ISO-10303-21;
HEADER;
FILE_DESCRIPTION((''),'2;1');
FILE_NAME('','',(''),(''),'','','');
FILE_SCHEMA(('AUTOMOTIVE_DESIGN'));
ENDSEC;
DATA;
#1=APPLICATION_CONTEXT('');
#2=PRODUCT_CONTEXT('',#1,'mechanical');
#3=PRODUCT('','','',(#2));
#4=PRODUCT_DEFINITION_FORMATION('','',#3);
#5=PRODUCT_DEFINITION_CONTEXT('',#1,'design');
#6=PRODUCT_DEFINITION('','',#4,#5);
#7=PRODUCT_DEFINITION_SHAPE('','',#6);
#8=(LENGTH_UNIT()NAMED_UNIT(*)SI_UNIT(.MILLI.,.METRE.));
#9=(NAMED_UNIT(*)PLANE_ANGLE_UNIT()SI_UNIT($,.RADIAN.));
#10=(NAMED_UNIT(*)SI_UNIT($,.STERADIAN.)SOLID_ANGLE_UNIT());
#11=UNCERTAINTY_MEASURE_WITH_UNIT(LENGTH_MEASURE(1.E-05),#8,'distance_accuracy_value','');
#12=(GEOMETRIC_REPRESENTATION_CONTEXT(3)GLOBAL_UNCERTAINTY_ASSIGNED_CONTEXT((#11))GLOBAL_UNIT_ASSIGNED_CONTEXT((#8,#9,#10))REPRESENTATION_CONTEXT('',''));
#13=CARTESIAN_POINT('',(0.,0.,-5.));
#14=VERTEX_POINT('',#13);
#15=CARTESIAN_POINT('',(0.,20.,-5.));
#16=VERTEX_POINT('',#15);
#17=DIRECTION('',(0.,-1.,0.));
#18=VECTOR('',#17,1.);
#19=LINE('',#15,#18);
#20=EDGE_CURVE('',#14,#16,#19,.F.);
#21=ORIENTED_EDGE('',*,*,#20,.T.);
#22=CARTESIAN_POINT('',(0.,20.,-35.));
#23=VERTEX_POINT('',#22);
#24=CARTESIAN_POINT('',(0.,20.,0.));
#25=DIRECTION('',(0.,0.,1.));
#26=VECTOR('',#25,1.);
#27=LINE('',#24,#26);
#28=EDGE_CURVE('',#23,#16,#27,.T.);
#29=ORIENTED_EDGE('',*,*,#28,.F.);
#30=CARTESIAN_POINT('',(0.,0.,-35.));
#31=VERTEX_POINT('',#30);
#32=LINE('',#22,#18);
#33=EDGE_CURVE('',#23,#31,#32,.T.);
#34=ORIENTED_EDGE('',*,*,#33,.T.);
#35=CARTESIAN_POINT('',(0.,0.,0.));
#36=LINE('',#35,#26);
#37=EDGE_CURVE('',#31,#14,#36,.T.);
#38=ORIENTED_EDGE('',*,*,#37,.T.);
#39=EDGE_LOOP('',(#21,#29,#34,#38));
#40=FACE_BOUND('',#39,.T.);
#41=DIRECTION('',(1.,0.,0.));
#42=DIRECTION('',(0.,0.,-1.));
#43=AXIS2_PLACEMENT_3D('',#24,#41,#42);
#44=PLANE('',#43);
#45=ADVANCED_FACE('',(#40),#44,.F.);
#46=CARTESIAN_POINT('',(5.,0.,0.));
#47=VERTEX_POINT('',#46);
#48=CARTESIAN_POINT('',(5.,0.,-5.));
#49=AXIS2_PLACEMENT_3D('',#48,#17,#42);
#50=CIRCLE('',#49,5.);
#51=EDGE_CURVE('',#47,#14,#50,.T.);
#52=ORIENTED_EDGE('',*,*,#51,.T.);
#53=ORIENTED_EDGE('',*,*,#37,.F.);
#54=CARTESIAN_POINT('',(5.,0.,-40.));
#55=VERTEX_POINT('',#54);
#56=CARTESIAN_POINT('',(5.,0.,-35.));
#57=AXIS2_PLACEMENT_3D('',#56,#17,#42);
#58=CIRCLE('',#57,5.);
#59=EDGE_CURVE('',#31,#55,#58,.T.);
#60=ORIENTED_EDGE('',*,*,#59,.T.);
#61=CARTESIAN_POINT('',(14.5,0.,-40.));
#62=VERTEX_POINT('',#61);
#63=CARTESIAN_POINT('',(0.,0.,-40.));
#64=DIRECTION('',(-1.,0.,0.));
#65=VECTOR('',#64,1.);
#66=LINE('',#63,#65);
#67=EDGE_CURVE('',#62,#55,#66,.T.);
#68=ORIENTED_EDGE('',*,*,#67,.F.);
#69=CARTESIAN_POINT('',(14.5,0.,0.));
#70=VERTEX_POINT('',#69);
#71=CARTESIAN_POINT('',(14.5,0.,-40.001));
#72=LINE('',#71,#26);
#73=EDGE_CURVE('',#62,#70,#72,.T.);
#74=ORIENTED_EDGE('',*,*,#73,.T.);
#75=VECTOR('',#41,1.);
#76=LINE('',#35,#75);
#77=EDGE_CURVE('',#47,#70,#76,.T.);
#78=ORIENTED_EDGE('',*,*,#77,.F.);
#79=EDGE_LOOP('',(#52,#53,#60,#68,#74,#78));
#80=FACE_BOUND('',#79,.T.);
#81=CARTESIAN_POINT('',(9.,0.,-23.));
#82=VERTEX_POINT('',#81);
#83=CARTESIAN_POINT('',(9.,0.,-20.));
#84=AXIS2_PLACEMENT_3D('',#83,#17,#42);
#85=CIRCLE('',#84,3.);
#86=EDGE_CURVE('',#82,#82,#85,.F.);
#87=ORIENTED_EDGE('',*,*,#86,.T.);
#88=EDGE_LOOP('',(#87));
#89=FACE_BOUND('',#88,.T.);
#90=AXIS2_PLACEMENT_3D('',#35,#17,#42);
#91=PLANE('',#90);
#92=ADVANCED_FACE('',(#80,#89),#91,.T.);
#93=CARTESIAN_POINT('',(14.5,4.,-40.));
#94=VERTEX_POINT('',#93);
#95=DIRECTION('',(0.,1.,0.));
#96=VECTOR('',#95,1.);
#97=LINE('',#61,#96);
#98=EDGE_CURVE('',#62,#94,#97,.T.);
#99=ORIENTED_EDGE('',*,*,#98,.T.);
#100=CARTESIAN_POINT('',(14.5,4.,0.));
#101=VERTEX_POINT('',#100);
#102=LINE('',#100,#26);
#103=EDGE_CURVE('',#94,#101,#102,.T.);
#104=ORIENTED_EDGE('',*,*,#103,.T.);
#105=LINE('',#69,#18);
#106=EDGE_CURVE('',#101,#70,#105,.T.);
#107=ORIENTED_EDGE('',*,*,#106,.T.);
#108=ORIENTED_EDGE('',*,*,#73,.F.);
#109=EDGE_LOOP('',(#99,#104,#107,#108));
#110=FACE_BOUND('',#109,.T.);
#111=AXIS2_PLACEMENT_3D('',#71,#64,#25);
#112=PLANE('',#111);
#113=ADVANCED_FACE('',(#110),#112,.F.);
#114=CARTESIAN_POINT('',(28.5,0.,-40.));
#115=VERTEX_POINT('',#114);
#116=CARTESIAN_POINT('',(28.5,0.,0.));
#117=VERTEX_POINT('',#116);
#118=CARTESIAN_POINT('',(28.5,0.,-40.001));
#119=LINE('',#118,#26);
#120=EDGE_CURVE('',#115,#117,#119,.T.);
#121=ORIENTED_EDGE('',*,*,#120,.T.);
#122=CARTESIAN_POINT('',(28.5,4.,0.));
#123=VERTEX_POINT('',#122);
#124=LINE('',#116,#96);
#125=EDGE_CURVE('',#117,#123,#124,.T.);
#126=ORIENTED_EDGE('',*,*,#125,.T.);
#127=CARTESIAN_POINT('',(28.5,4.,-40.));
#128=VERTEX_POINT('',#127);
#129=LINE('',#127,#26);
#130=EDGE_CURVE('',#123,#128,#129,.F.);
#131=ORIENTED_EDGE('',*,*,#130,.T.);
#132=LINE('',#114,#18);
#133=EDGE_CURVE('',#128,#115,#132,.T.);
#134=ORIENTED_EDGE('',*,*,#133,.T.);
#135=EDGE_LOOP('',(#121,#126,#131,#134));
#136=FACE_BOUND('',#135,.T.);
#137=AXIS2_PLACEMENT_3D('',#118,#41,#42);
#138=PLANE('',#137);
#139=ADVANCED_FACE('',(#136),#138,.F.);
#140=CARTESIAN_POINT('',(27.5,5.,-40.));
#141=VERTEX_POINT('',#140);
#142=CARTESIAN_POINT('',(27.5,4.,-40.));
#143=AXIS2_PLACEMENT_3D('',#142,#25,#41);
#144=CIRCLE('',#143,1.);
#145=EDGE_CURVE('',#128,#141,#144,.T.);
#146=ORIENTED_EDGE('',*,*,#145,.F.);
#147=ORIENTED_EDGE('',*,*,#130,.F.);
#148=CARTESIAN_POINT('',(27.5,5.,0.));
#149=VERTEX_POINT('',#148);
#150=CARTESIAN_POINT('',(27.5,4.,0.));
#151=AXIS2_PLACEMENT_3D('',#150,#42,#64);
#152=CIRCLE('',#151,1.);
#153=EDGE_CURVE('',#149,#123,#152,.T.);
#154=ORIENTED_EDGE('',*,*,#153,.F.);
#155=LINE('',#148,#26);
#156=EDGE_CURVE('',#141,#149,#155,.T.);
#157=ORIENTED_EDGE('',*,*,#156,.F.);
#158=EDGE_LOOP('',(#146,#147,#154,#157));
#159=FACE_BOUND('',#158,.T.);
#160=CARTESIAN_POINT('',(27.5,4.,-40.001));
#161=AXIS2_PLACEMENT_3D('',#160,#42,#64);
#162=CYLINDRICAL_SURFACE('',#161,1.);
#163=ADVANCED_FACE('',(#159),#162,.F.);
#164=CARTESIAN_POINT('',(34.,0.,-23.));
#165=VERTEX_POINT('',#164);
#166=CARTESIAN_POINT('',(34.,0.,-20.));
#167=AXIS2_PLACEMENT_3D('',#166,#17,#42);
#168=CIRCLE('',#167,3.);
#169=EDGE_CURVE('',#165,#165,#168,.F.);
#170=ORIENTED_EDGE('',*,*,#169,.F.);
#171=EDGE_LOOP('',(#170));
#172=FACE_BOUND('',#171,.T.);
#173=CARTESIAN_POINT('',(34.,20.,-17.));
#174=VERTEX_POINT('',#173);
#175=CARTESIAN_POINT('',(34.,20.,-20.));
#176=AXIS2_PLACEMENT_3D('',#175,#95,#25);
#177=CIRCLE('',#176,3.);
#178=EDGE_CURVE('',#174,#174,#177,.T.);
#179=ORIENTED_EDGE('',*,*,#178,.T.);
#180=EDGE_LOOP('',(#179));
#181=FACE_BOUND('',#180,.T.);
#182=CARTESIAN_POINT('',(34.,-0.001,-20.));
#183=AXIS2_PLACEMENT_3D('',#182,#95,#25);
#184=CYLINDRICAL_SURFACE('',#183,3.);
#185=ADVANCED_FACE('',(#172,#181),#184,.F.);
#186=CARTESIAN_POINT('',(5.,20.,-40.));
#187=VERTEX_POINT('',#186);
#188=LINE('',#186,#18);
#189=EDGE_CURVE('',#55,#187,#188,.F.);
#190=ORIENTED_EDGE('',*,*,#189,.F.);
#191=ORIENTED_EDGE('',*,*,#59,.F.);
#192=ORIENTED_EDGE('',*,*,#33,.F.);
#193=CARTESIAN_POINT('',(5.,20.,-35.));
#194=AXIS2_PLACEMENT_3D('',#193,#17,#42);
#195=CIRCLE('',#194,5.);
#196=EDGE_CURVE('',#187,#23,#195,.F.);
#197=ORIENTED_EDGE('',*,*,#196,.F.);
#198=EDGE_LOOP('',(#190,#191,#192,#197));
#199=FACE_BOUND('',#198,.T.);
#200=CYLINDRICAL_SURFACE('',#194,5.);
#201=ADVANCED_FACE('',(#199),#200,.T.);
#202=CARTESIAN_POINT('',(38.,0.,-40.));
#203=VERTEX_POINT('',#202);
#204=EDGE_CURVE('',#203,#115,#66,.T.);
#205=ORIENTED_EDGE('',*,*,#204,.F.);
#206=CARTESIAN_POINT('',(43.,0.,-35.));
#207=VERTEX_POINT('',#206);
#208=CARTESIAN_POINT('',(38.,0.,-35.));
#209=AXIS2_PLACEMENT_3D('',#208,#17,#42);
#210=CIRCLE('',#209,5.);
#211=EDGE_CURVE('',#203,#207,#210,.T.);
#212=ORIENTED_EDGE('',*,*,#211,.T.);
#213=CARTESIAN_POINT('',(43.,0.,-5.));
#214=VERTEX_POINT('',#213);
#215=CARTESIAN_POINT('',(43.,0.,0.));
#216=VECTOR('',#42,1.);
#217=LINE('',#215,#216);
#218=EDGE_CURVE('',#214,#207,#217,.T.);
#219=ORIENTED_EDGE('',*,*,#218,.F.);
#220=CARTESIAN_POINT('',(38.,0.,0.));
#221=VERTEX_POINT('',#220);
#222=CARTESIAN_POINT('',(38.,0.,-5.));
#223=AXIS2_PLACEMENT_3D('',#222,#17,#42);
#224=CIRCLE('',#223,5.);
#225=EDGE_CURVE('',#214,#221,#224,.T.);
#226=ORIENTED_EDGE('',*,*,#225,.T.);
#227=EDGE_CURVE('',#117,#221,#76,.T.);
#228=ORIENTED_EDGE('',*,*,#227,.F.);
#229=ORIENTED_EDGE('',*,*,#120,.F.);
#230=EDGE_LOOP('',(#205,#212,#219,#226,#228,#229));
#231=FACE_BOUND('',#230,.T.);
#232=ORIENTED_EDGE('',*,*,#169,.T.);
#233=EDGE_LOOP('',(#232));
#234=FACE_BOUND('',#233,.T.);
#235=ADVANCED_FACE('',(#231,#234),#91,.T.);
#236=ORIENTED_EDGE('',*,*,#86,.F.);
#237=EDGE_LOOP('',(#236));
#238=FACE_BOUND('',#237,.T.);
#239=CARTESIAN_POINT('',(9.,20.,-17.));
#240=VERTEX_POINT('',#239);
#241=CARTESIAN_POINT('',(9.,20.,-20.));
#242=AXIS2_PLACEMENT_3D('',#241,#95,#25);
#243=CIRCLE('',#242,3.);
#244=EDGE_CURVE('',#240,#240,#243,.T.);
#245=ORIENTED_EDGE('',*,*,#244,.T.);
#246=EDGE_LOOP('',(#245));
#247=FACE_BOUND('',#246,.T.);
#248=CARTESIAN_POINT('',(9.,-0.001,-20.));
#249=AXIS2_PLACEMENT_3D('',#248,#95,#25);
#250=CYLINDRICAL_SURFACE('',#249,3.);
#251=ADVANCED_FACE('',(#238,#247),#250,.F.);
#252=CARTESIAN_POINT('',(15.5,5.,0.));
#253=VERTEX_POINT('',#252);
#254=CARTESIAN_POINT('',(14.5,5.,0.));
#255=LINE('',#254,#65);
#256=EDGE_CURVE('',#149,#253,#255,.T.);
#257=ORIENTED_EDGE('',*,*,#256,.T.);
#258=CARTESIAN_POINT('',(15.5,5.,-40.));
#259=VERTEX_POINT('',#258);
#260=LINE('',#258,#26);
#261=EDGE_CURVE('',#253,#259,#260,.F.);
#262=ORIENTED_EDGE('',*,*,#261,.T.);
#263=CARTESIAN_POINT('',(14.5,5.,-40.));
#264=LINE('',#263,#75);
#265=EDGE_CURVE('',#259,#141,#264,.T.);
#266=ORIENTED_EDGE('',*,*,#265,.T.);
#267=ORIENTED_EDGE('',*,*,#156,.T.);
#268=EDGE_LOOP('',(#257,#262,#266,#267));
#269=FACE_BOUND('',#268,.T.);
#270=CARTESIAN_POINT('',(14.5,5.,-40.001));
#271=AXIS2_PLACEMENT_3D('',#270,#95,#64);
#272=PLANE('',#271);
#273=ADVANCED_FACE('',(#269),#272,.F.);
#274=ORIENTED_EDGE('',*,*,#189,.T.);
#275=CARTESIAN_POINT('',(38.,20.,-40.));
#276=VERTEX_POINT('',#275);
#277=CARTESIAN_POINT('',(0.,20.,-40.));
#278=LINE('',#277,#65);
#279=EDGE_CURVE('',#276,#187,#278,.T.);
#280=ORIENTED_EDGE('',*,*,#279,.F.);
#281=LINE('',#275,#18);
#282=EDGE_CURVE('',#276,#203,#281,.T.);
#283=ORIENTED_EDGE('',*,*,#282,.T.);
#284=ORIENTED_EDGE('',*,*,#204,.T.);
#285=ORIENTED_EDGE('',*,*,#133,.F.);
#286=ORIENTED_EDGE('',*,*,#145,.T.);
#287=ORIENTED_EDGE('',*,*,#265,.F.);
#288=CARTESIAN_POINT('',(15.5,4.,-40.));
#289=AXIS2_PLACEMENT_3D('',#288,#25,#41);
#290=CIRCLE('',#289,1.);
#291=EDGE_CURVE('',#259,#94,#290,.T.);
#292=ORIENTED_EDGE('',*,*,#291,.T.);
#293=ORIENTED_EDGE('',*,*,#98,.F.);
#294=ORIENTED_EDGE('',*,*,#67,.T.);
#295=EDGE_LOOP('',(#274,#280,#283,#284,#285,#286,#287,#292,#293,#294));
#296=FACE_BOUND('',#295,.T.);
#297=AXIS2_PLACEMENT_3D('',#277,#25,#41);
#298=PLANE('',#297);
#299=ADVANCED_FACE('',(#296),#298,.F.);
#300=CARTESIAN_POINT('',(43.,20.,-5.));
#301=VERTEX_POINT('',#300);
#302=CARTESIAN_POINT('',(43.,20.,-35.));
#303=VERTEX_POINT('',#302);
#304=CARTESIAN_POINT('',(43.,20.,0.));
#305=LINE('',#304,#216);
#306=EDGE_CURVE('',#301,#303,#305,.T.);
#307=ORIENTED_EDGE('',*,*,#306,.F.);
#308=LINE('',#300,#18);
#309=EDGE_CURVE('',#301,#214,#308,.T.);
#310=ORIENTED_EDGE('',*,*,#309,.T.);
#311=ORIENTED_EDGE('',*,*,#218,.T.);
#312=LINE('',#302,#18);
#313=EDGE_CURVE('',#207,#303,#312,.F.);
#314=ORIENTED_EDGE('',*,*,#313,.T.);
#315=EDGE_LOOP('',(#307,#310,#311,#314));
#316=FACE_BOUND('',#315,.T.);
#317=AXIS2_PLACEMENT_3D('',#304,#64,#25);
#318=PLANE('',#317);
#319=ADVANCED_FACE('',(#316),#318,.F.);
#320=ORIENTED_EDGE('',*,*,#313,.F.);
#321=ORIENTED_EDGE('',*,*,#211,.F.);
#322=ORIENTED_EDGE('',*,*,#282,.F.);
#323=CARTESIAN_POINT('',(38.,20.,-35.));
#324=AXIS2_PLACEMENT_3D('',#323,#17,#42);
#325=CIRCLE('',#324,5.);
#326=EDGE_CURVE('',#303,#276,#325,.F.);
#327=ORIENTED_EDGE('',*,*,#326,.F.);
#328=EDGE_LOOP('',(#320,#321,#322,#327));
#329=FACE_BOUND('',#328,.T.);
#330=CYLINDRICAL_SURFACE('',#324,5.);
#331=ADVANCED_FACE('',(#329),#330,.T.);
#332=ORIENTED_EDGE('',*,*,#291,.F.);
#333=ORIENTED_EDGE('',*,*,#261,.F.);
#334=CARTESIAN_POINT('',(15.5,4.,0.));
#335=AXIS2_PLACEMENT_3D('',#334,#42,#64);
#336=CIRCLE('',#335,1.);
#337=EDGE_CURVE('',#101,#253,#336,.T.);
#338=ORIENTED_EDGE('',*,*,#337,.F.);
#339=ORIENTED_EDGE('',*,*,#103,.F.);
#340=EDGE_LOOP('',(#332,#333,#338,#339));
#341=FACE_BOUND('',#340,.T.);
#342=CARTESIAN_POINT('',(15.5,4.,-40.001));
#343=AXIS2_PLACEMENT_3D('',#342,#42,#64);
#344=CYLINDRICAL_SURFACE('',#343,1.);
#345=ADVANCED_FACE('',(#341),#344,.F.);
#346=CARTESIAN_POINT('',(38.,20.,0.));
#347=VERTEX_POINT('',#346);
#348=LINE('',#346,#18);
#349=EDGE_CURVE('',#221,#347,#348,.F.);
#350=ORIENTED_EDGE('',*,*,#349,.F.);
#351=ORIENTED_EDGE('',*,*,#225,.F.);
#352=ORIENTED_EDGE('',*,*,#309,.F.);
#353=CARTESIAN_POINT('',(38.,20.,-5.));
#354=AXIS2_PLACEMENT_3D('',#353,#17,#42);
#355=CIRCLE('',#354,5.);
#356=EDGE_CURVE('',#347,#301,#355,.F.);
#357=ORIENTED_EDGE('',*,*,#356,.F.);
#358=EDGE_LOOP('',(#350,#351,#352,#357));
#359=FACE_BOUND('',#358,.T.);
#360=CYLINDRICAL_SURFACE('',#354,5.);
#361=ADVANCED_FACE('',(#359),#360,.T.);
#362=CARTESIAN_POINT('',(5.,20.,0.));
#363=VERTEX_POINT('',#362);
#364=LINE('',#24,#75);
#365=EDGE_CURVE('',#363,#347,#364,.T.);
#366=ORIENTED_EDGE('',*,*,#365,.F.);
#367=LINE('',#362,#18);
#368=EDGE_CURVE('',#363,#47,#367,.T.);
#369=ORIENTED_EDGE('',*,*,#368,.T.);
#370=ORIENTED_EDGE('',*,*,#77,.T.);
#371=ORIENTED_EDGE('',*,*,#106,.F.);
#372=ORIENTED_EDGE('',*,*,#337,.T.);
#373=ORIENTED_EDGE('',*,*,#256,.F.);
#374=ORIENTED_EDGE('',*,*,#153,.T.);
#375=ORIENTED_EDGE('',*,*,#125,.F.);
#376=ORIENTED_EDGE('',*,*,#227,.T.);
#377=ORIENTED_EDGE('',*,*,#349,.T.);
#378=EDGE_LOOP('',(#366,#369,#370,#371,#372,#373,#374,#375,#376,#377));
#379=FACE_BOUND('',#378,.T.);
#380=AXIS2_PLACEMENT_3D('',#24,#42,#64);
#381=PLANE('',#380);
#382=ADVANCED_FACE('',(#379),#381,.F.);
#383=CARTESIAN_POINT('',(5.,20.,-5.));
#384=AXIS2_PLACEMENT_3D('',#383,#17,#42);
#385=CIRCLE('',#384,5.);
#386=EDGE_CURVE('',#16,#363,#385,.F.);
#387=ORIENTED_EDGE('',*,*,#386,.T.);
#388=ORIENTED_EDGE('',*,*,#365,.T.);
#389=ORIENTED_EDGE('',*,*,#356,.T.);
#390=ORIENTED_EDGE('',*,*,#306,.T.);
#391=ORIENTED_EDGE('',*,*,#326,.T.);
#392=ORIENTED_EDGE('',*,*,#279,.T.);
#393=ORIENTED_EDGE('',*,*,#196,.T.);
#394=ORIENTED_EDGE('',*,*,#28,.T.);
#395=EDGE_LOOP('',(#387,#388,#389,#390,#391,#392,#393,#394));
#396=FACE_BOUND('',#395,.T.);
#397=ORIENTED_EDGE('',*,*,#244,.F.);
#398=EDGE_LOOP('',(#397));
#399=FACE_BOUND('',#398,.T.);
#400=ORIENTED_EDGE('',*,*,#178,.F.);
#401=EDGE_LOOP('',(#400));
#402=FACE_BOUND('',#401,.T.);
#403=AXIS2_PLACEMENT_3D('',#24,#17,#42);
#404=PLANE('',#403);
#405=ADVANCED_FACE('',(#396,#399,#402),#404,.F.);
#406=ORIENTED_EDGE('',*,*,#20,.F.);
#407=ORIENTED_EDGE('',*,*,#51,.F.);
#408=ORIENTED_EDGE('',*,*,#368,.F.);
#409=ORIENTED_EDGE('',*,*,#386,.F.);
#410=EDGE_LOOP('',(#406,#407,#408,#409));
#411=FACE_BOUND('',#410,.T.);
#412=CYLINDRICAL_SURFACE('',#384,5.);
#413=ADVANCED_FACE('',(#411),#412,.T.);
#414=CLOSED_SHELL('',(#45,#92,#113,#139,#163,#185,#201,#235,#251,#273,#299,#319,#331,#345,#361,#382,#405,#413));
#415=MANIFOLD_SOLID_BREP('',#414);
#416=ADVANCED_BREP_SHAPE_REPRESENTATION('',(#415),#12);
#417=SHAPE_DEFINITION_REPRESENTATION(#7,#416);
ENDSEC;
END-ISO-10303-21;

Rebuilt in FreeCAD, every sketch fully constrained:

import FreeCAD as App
import Part
import Sketcher
from FreeCAD import Vector


def edges_at(feature, points):
    """Names of the edges that pass closest to the given points."""
    edges = feature.Shape.Edges
    near = lambda p: min(range(len(edges)), key=lambda i: edges[i].distToShape(Part.Vertex(*p))[0])
    return sorted({f"Edge{near(p) + 1}" for p in points})


def add_polygon(sketch, points):
    """Adds a closed chain of lines whose ends are joined by coincident constraints."""
    first, n = sketch.GeometryCount, len(points)
    for a, b in zip(points, points[1:] + points[:1]):
        sketch.addGeometry(Part.LineSegment(App.Vector(*a, 0), App.Vector(*b, 0)), False)
    for i in range(n):
        sketch.addConstraint(Sketcher.Constraint("Coincident", first + i, 2, first + (i + 1) % n, 1))

doc = App.newDocument("Part")
params = doc.addObject("Spreadsheet::Sheet", "Params")
for row, (alias, value) in enumerate([
    ("sketch1_width", "43 mm"),
    ("sketch1_height", "40 mm"),
    ("pad1_length", "20 mm"),
    ("sketch2_diameter", "6 mm"),
    ("sketch3_diameter", "6 mm"),
    ("fillet_radius", "5 mm"),
    ("sketch4_width", "14 mm"),
    ("sketch4_height", "5 mm"),
    ("fillet2_radius", "1 mm"),
], start=1):
    params.set(f"A{row}", alias)
    params.set(f"B{row}", "=" + value)
    params.setAlias(f"B{row}", alias)

body = doc.addObject("PartDesign::Body", "Body")

# Sketch on XZ plane
sketch1 = body.newObject("Sketcher::SketchObject", "Sketch")
sketch1.AttachmentSupport = (doc.getObject("XZ_Plane"), [""])
sketch1.MapMode = "FlatFace"
add_polygon(sketch1, [(0, -40), (0, 0), (43, 0), (43, -40)])  # lines 0-3
sketch1.addConstraint([
    Sketcher.Constraint("Vertical", 0),
    Sketcher.Constraint("Horizontal", 1),
    Sketcher.Constraint("Vertical", 2),
    Sketcher.Constraint("Horizontal", 3),
    Sketcher.Constraint("Coincident", 0, 2, -1, 1),
    Sketcher.Constraint("DistanceX", 1, 1, 1, 2, 43.0),
    Sketcher.Constraint("DistanceY", 0, 1, 0, 2, 40.0),
])
sketch1.setExpression("Constraints[9]", "Params.sketch1_width")
sketch1.setExpression("Constraints[10]", "Params.sketch1_height")
pad1 = body.newObject("PartDesign::Pad", "Pad")
pad1.Profile = sketch1
pad1.setExpression("Length", "Params.pad1_length")
pad1.Reversed = True

# Sketch on XZ plane
sketch2 = body.newObject("Sketcher::SketchObject", "Sketch001")
sketch2.AttachmentSupport = (doc.getObject("XZ_Plane"), [""])
sketch2.MapMode = "FlatFace"
sketch2.AttachmentOffset = App.Placement(Vector(0, 0, -20), App.Rotation())
sketch2.addGeometry(Part.Circle(Vector(9, -20, 0), Vector(0, 0, 1), 3), False)
sketch2.addConstraint([
    Sketcher.Constraint("Diameter", 0, 6.0),
    Sketcher.Constraint("DistanceX", -1, 1, 0, 3, 9.0),
    Sketcher.Constraint("DistanceY", 0, 3, -1, 1, 20.0),
])
sketch2.setExpression("Constraints[0]", "Params.sketch2_diameter")
pocket1 = body.newObject("PartDesign::Pocket", "Pocket")
pocket1.Profile = sketch2
pocket1.Type = "UpToFirst"
pocket1.Reversed = True

# Sketch on XZ plane
sketch3 = body.newObject("Sketcher::SketchObject", "Sketch002")
sketch3.AttachmentSupport = (doc.getObject("XZ_Plane"), [""])
sketch3.MapMode = "FlatFace"
sketch3.AttachmentOffset = App.Placement(Vector(0, 0, -20), App.Rotation())
sketch3.addGeometry(Part.Circle(Vector(34, -20, 0), Vector(0, 0, 1), 3), False)
sketch3.addConstraint([
    Sketcher.Constraint("Diameter", 0, 6.0),
    Sketcher.Constraint("DistanceX", -1, 1, 0, 3, 34.0),
    Sketcher.Constraint("DistanceY", 0, 3, -1, 1, 20.0),
])
sketch3.setExpression("Constraints[0]", "Params.sketch3_diameter")
pocket2 = body.newObject("PartDesign::Pocket", "Pocket001")
pocket2.Profile = sketch3
pocket2.Type = "UpToFirst"
pocket2.Reversed = True
doc.recompute()

fillet = body.newObject("PartDesign::Fillet", "Fillet")
fillet.Base = (pocket2, edges_at(pocket2, [
    (0, 10, -40),
    (43, 10, -40),
    (43, 10, 0),
    (0, 10, 0),
]))
fillet.setExpression("Radius", "Params.fillet_radius")

# Sketch on XY plane
sketch4 = body.newObject("Sketcher::SketchObject", "Sketch003")
sketch4.AttachmentSupport = (doc.getObject("XY_Plane"), [""])
sketch4.MapMode = "FlatFace"
add_polygon(sketch4, [(14, 5), (14, 0), (28, 0), (28, 5)])  # lines 0-3
sketch4.addConstraint([
    Sketcher.Constraint("Vertical", 0),
    Sketcher.Constraint("Horizontal", 1),
    Sketcher.Constraint("Vertical", 2),
    Sketcher.Constraint("Horizontal", 3),
    Sketcher.Constraint("PointOnObject", 0, 2, -1),
    Sketcher.Constraint("DistanceX", 1, 1, 1, 2, 14.0),
    Sketcher.Constraint("DistanceY", 0, 2, 0, 1, 5.0),
    Sketcher.Constraint("DistanceX", -1, 1, 0, 2, 14.5),
])
sketch4.setExpression("Constraints[9]", "Params.sketch4_width")
sketch4.setExpression("Constraints[10]", "Params.sketch4_height")
pocket3 = body.newObject("PartDesign::Pocket", "Pocket002")
pocket3.Profile = sketch4
pocket3.Type = "UpToFirst"
doc.recompute()

fillet2 = body.newObject("PartDesign::Fillet", "Fillet001")
fillet2.Base = (pocket3, edges_at(pocket3, [(14.5, 5, -20), (28.5, 5, -20)]))
fillet2.setExpression("Radius", "Params.fillet2_radius")

doc.recompute()
